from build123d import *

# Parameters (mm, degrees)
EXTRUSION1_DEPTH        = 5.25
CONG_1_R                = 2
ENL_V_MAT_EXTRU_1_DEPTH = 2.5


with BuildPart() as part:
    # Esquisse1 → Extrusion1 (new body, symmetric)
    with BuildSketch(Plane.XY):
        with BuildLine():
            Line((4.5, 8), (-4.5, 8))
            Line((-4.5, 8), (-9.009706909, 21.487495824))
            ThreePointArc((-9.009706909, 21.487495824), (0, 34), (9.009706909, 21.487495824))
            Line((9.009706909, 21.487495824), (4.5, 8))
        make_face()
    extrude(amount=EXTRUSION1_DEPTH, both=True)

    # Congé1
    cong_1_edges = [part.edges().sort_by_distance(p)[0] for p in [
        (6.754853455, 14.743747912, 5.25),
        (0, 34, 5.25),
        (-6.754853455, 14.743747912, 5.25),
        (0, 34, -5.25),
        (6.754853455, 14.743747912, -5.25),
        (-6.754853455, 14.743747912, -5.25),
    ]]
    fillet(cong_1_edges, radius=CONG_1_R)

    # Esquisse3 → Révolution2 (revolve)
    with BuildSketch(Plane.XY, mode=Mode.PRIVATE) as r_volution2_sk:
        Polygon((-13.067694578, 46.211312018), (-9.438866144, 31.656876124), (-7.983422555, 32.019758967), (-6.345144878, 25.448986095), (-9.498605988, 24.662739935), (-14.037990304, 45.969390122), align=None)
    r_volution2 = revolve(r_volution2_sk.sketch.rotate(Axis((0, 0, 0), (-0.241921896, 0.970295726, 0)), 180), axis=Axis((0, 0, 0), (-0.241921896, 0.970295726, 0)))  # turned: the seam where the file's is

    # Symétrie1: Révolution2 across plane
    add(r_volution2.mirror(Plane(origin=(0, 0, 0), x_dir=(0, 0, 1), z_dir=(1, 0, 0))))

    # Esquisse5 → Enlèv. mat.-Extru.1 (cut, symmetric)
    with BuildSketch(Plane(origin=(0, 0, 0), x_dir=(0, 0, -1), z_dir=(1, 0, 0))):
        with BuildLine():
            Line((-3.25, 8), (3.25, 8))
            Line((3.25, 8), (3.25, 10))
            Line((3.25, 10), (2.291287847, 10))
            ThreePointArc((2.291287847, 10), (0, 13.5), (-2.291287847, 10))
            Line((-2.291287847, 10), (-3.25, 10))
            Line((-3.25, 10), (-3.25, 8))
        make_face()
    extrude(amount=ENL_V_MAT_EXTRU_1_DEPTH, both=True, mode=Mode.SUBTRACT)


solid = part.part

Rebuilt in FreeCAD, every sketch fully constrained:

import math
import FreeCAD as App
import Part
import Sketcher
from FreeCAD import Vector
Q = App.Units.Quantity


def edges_at(feature, points):
    """Names of the edges that pass closest to the given points."""
    edges = feature.Shape.Edges
    near = lambda p: min(range(len(edges)), key=lambda i: edges[i].distToShape(Part.Vertex(*p))[0])
    return sorted({f"Edge{near(p) + 1}" for p in points})

doc = App.newDocument("Part")
body = doc.addObject("PartDesign::Body", "Body")

sketch1 = doc.addObject("Sketcher::SketchObject", "Sketch")
body.addObject(sketch1)
sketch1.AttachmentSupport = (doc.XY_Plane, [""])
sketch1.MapMode = "FlatFace"
sketch1.addGeometry([
    Part.LineSegment(Vector(-4, 8, 0), Vector(4, 8, 0)),
    Part.LineSegment(Vector(4, 8, 0), Vector(9, 21, 0)),
    Part.ArcOfCircle(Part.Circle(Vector(0, 24, 0), Vector(0, 0, 1), 10), math.radians(-18), math.radians(198)),
    Part.LineSegment(Vector(-9, 21, 0), Vector(-4, 8, 0)),
], False)
sketch1.addConstraint([
    Sketcher.Constraint("Coincident", 0, 2, 1, 1),
    Sketcher.Constraint("Tangent", 1, 2, 2, 1),
    Sketcher.Constraint("Tangent", 2, 2, 3, 1),
    Sketcher.Constraint("Coincident", 3, 2, 0, 1),
    Sketcher.Constraint("Horizontal", 0),
    Sketcher.Constraint("Symmetric", 1, 2, 2, 2, -2),
    Sketcher.Constraint("Radius", 2, Q("9.5 mm")),
    Sketcher.Constraint("DistanceX", 0, 1, 0, 2, Q("9 mm")),
    Sketcher.Constraint("DistanceY", -1, 1, 0, 2, Q("8 mm")),
    Sketcher.Constraint("DistanceY", -1, 1, 2, 3, Q("24.5 mm")),
])
pad1 = doc.addObject("PartDesign::Pad", "Pad")
body.addObject(pad1)
pad1.Profile = sketch1
pad1.Length = 10.5
pad1.Midplane = True
doc.recompute()

fillet = doc.addObject("PartDesign::Fillet", "Fillet")
body.addObject(fillet)
fillet.Base = (pad1, edges_at(pad1, [
    (6.755, 14.744, 5.25),
    (0, 34, 5.25),
    (-6.755, 14.744, 5.25),
    (0, 34, -5.25),
    (6.755, 14.744, -5.25),
    (-6.755, 14.744, -5.25),
]))
fillet.Radius = 2

sketch2 = doc.addObject("Sketcher::SketchObject", "Sketch001")
body.addObject(sketch2)
sketch2.AttachmentSupport = (doc.XY_Plane, [""])
sketch2.MapMode = "FlatFace"
sketch2.addGeometry([
    Part.LineSegment(Vector(-9.4, 31.7, 0), Vector(-13.1, 46.2, 0)),
    Part.LineSegment(Vector(-13.1, 46.2, 0), Vector(-14, 46, 0)),
    Part.LineSegment(Vector(-14, 46, 0), Vector(-9.5, 24.7, 0)),
    Part.LineSegment(Vector(-9.5, 24.7, 0), Vector(-6.3, 25.4, 0)),
    Part.LineSegment(Vector(-6.3, 25.4, 0), Vector(-8, 32, 0)),
    Part.LineSegment(Vector(-8, 32, 0), Vector(-9.4, 31.7, 0)),
], False)
sketch2.addGeometry(Part.LineSegment(Vector(-6.3, 25.4, 0), Vector(-11.6, 46.6, 0)), True)
sketch2.addConstraint([
    Sketcher.Constraint("Coincident", 0, 2, 1, 1),
    Sketcher.Constraint("Coincident", 1, 2, 2, 1),
    Sketcher.Constraint("Coincident", 2, 2, 3, 1),
    Sketcher.Constraint("Coincident", 3, 2, 4, 1),
    Sketcher.Constraint("Coincident", 4, 2, 5, 1),
    Sketcher.Constraint("Coincident", 5, 2, 0, 1),
    Sketcher.Constraint("Coincident", 6, 1, 3, 2),
    Sketcher.Constraint("Perpendicular", 0, 1),
    Sketcher.Constraint("Parallel", 1, 3),
    Sketcher.Constraint("Perpendicular", 3, 4),
    Sketcher.Constraint("Perpendicular", 4, 5),
    Sketcher.Constraint("Perpendicular", 5, 6),
    Sketcher.Constraint("Angle", 0, Q("104 deg")),
    Sketcher.Constraint("Distance", 0, Q("15 mm")),
    Sketcher.Constraint("Distance", 1, Q("1 mm")),
    Sketcher.Constraint("Distance", 5, Q("1.5 mm")),
    Sketcher.Constraint("Distance", 3, Q("3.25 mm")),
    Sketcher.Constraint("Distance", 4, Q("6.771928 mm")),
    Sketcher.Constraint("Distance", 6, Q("21.771928 mm")),
    Sketcher.Constraint("DistanceX", 1, 2, -1, 1, Q("14.03799 mm")),
    Sketcher.Constraint("DistanceY", -1, 1, 1, 2, Q("45.96939 mm")),
])
revolution = doc.addObject("PartDesign::Revolution", "Revolution")
body.addObject(revolution)
revolution.Profile = sketch2
revolution.ReferenceAxis = (sketch2, ["Axis0"])
revolution.Angle = 360
doc.recompute()

mirrored = doc.addObject("PartDesign::Mirrored", "Mirrored")
body.addObject(mirrored)
mirrored.Originals = [revolution]
mirrored.MirrorPlane = (doc.YZ_Plane, [""])
body.Tip = mirrored

sketch3 = doc.addObject("Sketcher::SketchObject", "Sketch002")
body.addObject(sketch3)
sketch3.AttachmentSupport = (doc.YZ_Plane, [""])
sketch3.MapMode = "FlatFace"
sketch3.addGeometry([
    Part.LineSegment(Vector(8, 3.2, 0), Vector(8, -3.2, 0)),
    Part.LineSegment(Vector(8, -3.2, 0), Vector(10, -3.2, 0)),
    Part.LineSegment(Vector(10, -3.2, 0), Vector(10, -2.3, 0)),
    Part.ArcOfCircle(Part.Circle(Vector(11, 0, 0), Vector(0, 0, 1), 2.5), math.radians(-114), math.radians(114)),
    Part.LineSegment(Vector(10, 2.3, 0), Vector(10, 3.2, 0)),
    Part.LineSegment(Vector(10, 3.2, 0), Vector(8, 3.2, 0)),
], False)
sketch3.addConstraint([
    Sketcher.Constraint("Coincident", 0, 2, 1, 1),
    Sketcher.Constraint("Coincident", 1, 2, 2, 1),
    Sketcher.Constraint("Coincident", 2, 2, 3, 1),
    Sketcher.Constraint("Coincident", 3, 2, 4, 1),
    Sketcher.Constraint("Coincident", 4, 2, 5, 1),
    Sketcher.Constraint("Coincident", 5, 2, 0, 1),
    Sketcher.Constraint("Vertical", 0),
    Sketcher.Constraint("Horizontal", 1),
    Sketcher.Constraint("Vertical", 2),
    Sketcher.Constraint("Vertical", 4),
    Sketcher.Constraint("Horizontal", 5),
    Sketcher.Constraint("Symmetric", 2, 2, 3, 2, -1),
    Sketcher.Constraint("Equal", 2, 4),
    Sketcher.Constraint("Radius", 3, Q("2.5 mm")),
    Sketcher.Constraint("DistanceX", 1, 1, 1, 2, Q("2 mm")),
    Sketcher.Constraint("DistanceY", 0, 2, 0, 1, Q("6.5 mm")),
    Sketcher.Constraint("DistanceX", -1, 1, 3, 3, Q("11 mm")),
    Sketcher.Constraint("DistanceX", -1, 1, 0, 2, Q("8 mm")),
])
pocket1 = doc.addObject("PartDesign::Pocket", "Pocket")
body.addObject(pocket1)
pocket1.Profile = sketch3
pocket1.Length = 5
pocket1.Midplane = True

doc.recompute()
